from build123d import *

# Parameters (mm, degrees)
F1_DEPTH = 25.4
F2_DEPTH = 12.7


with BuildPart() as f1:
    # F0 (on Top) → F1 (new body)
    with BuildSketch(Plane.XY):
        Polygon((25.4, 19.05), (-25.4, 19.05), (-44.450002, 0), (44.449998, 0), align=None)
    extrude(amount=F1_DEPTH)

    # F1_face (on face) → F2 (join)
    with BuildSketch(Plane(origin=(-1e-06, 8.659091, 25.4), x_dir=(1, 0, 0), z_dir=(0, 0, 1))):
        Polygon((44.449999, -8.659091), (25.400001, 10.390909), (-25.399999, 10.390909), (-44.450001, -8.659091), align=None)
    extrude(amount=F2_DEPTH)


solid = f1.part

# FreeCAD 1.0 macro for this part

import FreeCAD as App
import Part
import Sketcher
Q = App.Units.Quantity


def add_polygon(sketch, points):
    """Adds a closed chain of lines whose ends are joined by coincident constraints."""
    first, n = sketch.GeometryCount, len(points)
    for a, b in zip(points, points[1:] + points[:1]):
        sketch.addGeometry(Part.LineSegment(App.Vector(*a, 0), App.Vector(*b, 0)), False)
    for i in range(n):
        sketch.addConstraint(Sketcher.Constraint("Coincident", first + i, 2, first + (i + 1) % n, 1))

doc = App.newDocument("Part")
params = doc.addObject("Spreadsheet::Sheet", "Params")
for row, (alias, value) in enumerate([
    ("sketch1_width", "2 in"),
    ("sketch1_width2", "3.5 in"),
    ("pad1_length", "1 in"),
    ("sketch2_width", "2 in"),
    ("sketch2_width2", "3.5 in"),
    ("pad2_length", "0.5 in"),
], start=1):
    params.set(f"A{row}", alias)
    params.set(f"B{row}", "=" + value)
    params.setAlias(f"B{row}", alias)

body = doc.addObject("PartDesign::Body", "Body")

sketch1 = body.newObject("Sketcher::SketchObject", "Sketch")
sketch1.AttachmentSupport = (doc.getObject("XY_Plane"), [""])
sketch1.MapMode = "FlatFace"
add_polygon(sketch1, [(25, 19), (-25, 19), (-44, 0), (44, 0)])
sketch1.addConstraint([
    Sketcher.Constraint("Horizontal", 0),
    Sketcher.Constraint("Horizontal", 2),
    Sketcher.Constraint("Symmetric", 1, 2, 2, 2, -1, 1),
    Sketcher.Constraint("Perpendicular", 1, 3),
    Sketcher.Constraint("DistanceX", 0, 2, 0, 1, Q("2 in")),
    Sketcher.Constraint("DistanceX", 2, 1, 2, 2, Q("3.5 in")),
    Sketcher.Constraint("DistanceX", 0, 2, -1, 1, Q("1 in")),
])
sketch1.setExpression("Constraints[8]", "Params.sketch1_width")
sketch1.setExpression("Constraints[9]", "Params.sketch1_width2")
pad1 = body.newObject("PartDesign::Pad", "Pad")
pad1.Profile = sketch1
pad1.setExpression("Length", "Params.pad1_length")

sketch2 = body.newObject("Sketcher::SketchObject", "Sketch001")
sketch2.AttachmentSupport = (doc.getObject("XY_Plane"), [""])
sketch2.MapMode = "FlatFace"
sketch2.AttachmentOffset = App.Placement(App.Vector(0, 0, 1 * 25.4), App.Rotation())
add_polygon(sketch2, [(44, 0), (25, 19), (-25, 19), (-44, 0)])
sketch2.addConstraint([
    Sketcher.Constraint("Horizontal", 1),
    Sketcher.Constraint("Horizontal", 3),
    Sketcher.Constraint("Symmetric", 2, 2, 3, 2, -1, 1),
    Sketcher.Constraint("Perpendicular", 0, 2),
    Sketcher.Constraint("DistanceX", 1, 2, 1, 1, Q("2 in")),
    Sketcher.Constraint("DistanceX", 3, 1, 3, 2, Q("3.5 in")),
    Sketcher.Constraint("DistanceX", -1, 1, 0, 2, Q("1 in")),
])
sketch2.setExpression("Constraints[8]", "Params.sketch2_width")
sketch2.setExpression("Constraints[9]", "Params.sketch2_width2")
pad2 = body.newObject("PartDesign::Pad", "Pad001")
pad2.Profile = sketch2
pad2.setExpression("Length", "Params.pad2_length")

doc.recompute()
